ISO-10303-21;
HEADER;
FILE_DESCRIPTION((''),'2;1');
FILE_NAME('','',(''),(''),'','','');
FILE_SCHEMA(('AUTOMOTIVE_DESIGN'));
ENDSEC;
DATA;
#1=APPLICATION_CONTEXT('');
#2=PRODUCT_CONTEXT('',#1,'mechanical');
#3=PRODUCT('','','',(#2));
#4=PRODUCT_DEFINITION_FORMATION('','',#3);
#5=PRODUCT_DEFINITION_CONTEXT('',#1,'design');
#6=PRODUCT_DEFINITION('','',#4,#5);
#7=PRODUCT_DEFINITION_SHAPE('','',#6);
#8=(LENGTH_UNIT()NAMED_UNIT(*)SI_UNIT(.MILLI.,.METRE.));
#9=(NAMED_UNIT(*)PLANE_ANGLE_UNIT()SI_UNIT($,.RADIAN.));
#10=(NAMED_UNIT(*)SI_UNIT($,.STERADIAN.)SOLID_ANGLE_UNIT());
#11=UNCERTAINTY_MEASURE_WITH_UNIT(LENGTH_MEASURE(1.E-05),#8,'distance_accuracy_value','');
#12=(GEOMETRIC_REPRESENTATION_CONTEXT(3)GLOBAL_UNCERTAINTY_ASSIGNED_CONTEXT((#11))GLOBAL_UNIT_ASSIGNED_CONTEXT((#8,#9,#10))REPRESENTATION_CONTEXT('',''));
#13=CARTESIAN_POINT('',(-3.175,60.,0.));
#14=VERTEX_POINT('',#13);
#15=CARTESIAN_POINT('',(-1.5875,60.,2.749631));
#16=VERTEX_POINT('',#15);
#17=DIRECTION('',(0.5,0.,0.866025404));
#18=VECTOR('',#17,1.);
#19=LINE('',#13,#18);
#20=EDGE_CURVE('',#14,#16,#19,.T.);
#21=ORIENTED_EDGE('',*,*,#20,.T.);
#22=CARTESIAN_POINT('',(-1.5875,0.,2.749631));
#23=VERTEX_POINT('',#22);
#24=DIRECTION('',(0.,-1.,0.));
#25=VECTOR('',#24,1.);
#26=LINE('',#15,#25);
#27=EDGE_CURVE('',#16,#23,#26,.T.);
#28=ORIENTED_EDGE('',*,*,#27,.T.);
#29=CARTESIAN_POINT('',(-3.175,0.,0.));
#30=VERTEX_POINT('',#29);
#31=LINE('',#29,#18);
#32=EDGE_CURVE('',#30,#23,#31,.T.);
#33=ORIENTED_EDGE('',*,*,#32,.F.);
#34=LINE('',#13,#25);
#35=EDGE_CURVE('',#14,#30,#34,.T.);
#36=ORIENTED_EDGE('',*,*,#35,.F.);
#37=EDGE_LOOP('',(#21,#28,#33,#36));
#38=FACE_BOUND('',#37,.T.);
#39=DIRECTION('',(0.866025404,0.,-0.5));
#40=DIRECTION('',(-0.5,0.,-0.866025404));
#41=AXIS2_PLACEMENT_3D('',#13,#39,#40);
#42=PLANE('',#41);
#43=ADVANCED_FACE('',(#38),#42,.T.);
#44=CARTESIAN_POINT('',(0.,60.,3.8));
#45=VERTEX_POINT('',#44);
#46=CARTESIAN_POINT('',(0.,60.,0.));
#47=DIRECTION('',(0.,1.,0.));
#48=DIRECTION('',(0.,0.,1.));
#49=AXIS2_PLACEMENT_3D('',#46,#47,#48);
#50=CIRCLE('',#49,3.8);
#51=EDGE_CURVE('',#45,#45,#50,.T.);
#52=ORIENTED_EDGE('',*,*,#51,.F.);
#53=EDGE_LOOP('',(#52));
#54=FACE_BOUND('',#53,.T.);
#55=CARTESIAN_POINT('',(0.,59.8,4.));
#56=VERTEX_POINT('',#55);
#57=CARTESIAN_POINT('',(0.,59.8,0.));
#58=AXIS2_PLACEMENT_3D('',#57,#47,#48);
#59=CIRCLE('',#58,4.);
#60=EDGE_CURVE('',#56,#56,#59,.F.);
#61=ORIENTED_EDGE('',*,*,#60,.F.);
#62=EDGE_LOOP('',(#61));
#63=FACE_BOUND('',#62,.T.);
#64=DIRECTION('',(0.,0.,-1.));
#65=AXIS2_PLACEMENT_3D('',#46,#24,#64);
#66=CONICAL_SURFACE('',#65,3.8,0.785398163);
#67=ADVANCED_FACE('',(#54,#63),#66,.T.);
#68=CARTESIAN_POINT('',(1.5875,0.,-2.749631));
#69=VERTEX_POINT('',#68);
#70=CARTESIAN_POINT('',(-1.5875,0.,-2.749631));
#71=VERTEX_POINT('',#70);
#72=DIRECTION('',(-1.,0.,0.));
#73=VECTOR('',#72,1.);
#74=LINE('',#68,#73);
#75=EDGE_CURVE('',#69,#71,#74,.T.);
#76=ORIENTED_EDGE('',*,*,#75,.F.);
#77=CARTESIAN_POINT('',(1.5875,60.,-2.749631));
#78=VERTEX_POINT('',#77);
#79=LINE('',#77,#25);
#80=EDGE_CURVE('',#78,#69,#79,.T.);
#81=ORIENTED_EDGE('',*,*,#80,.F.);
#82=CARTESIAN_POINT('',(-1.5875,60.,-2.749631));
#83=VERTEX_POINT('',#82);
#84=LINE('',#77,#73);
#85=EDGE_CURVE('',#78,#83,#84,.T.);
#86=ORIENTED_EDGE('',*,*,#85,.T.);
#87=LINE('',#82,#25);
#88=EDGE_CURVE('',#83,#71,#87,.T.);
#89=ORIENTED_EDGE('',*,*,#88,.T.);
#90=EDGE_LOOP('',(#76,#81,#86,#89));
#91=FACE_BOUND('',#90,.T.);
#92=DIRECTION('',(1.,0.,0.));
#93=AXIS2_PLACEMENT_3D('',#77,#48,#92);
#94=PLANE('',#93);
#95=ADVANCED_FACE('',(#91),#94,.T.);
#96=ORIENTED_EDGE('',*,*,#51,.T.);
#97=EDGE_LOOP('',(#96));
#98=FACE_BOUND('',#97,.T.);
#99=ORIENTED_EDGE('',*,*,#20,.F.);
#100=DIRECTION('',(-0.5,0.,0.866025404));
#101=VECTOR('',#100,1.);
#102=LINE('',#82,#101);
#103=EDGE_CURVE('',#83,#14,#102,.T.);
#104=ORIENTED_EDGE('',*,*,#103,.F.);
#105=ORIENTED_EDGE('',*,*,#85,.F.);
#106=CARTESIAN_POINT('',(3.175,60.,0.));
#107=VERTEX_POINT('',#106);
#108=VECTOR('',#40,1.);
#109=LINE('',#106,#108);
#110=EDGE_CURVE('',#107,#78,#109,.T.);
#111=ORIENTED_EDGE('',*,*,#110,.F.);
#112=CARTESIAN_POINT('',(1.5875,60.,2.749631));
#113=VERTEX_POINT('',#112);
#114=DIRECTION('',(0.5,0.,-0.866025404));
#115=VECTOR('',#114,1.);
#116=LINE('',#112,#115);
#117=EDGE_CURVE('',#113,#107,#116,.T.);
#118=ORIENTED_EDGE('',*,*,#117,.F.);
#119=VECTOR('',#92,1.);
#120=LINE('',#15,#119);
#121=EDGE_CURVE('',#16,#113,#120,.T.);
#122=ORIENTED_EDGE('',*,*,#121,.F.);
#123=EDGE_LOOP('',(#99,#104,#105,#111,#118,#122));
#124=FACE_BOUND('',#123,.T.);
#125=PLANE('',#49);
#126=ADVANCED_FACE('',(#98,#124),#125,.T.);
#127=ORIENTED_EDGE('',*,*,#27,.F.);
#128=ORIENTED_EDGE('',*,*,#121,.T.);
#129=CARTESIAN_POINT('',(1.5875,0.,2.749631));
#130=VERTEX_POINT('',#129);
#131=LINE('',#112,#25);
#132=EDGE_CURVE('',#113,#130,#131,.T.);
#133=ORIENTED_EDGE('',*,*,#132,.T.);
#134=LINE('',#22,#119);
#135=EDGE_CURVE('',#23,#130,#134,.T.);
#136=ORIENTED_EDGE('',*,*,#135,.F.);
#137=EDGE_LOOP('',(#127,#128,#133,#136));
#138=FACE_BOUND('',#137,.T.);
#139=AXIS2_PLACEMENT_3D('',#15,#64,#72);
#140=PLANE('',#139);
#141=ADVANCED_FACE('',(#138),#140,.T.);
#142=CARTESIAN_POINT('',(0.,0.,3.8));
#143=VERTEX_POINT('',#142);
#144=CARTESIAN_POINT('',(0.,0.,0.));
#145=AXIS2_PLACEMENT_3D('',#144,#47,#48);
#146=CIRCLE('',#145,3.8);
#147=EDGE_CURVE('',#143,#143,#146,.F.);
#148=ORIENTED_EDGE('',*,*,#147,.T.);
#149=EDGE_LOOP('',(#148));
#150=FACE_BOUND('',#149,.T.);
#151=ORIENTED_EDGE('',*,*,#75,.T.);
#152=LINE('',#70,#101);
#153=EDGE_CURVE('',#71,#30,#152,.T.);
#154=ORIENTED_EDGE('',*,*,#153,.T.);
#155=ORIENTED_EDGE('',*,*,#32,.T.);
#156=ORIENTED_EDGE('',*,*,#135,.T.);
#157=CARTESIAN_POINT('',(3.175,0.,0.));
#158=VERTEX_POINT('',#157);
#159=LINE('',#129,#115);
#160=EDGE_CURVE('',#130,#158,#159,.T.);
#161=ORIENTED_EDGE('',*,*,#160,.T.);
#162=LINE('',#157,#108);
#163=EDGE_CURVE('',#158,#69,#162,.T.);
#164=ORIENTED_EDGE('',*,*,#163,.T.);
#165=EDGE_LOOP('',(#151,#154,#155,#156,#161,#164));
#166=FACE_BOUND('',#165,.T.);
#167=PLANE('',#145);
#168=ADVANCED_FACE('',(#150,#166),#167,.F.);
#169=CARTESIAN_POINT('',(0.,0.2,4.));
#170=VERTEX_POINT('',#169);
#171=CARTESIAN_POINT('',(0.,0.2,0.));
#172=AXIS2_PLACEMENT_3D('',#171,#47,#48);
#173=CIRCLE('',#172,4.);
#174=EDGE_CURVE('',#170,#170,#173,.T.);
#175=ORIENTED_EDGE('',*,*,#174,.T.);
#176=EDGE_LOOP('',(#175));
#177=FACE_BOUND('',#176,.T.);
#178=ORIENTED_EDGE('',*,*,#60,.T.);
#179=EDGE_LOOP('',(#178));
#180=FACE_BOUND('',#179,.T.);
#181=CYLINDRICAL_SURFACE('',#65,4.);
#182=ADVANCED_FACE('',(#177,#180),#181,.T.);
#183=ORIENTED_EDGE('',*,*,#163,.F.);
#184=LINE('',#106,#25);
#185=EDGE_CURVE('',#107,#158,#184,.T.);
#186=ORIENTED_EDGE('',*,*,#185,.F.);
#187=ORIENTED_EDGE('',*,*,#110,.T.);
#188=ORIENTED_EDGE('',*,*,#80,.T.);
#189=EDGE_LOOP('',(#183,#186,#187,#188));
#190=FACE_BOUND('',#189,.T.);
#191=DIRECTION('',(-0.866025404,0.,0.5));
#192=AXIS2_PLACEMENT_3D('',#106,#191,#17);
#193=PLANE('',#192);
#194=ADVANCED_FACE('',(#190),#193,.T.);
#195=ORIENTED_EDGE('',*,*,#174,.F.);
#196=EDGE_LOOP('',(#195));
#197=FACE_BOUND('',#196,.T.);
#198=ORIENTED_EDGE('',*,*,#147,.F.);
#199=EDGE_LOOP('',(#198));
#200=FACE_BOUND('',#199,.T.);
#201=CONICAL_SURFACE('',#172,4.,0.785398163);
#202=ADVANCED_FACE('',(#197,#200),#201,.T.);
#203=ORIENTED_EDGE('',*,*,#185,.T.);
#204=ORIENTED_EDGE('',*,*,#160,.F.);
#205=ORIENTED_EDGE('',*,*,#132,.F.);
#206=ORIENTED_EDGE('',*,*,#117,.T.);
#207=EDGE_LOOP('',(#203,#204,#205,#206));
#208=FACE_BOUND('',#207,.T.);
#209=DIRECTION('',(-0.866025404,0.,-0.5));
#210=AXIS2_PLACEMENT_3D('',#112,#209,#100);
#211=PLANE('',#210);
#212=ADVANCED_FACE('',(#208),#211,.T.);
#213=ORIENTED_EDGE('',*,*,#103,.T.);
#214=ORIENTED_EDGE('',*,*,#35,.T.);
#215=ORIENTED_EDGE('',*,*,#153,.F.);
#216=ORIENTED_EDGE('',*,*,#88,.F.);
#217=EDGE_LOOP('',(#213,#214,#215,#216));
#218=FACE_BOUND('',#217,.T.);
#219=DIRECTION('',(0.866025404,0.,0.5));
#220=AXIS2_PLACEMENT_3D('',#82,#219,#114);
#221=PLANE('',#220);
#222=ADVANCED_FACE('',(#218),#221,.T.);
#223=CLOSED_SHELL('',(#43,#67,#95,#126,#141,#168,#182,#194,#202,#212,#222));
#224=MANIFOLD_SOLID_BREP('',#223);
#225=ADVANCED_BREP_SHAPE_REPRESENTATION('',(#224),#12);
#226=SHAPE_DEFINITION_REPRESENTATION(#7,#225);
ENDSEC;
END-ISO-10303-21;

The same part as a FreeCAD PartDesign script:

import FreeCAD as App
import Part
import Sketcher

V = App.Vector
Q = App.Units.Quantity


def edges_at(feature, points):
    """Names of the edges that pass closest to the given points."""
    edges = feature.Shape.Edges
    near = lambda p: min(range(len(edges)), key=lambda i: edges[i].distToShape(Part.Vertex(*p))[0])
    return sorted({f"Edge{near(p) + 1}" for p in points})


def add_polygon(sketch, points):
    """Adds a closed chain of lines whose ends are joined by coincident constraints."""
    first, n = sketch.GeometryCount, len(points)
    for a, b in zip(points, points[1:] + points[:1]):
        sketch.addGeometry(Part.LineSegment(App.Vector(*a, 0), App.Vector(*b, 0)), False)
    for i in range(n):
        sketch.addConstraint(Sketcher.Constraint("Coincident", first + i, 2, first + (i + 1) % n, 1))

doc = App.newDocument("Part")
body = doc.addObject("PartDesign::Body", "Body")

# Sketch on XZ plane
sketch1 = doc.addObject("Sketcher::SketchObject", "Sketch")
body.addObject(sketch1)
sketch1.AttachmentSupport = (doc.XZ_Plane, [""])
sketch1.MapMode = "FlatFace"
sketch1.addGeometry(Part.Circle(V(0, 0, 0), V(0, 0, 1), 4), False)  # 0
add_polygon(sketch1, [(1.5875, -2.749631), (3.175, 0), (1.5875, 2.749631), (-1.5875, 2.749631), (-3.175, 0), (-1.5875, -2.749631)])  # lines 1-6
sketch1.addConstraint(Sketcher.Constraint("Horizontal", 3))
sketch1.addConstraint(Sketcher.Constraint("Horizontal", 6))
sketch1.addConstraint(Sketcher.Constraint("Coincident", 0, 3, -1, 1))
sketch1.addConstraint(Sketcher.Constraint("Symmetric", 1, 2, 4, 2, -1, 1))
sketch1.addConstraint(Sketcher.Constraint("Symmetric", 2, 2, 5, 2, -1, 1))
sketch1.addConstraint(Sketcher.Constraint("PointOnObject", 1, 2, -1))
sketch1.addConstraint(Sketcher.Constraint("Parallel", 1, 4))
sketch1.addConstraint(Sketcher.Constraint("Vertical", 3, 2, 5, 2))
sketch1.addConstraint(Sketcher.Constraint("Diameter", 0, 8.0))
sketch1.addConstraint(Sketcher.Constraint("Angle", 1, Q("60 deg")))
sketch1.addConstraint(Sketcher.Constraint("DistanceX", 3, 2, 3, 1, 3.175))
sketch1.addConstraint(Sketcher.Constraint("DistanceX", 4, 2, 1, 2, 6.35))
pad1 = doc.addObject("PartDesign::Pad", "Pad")
body.addObject(pad1)
pad1.Profile = sketch1
pad1.Length = 60
pad1.Reversed = True
doc.recompute()

chamfer = doc.addObject("PartDesign::Chamfer", "Chamfer")
body.addObject(chamfer)
chamfer.Base = (pad1, edges_at(pad1, [(0, 0, -4), (0, 60, -4)]))
chamfer.Size = 0.2

doc.recompute()
